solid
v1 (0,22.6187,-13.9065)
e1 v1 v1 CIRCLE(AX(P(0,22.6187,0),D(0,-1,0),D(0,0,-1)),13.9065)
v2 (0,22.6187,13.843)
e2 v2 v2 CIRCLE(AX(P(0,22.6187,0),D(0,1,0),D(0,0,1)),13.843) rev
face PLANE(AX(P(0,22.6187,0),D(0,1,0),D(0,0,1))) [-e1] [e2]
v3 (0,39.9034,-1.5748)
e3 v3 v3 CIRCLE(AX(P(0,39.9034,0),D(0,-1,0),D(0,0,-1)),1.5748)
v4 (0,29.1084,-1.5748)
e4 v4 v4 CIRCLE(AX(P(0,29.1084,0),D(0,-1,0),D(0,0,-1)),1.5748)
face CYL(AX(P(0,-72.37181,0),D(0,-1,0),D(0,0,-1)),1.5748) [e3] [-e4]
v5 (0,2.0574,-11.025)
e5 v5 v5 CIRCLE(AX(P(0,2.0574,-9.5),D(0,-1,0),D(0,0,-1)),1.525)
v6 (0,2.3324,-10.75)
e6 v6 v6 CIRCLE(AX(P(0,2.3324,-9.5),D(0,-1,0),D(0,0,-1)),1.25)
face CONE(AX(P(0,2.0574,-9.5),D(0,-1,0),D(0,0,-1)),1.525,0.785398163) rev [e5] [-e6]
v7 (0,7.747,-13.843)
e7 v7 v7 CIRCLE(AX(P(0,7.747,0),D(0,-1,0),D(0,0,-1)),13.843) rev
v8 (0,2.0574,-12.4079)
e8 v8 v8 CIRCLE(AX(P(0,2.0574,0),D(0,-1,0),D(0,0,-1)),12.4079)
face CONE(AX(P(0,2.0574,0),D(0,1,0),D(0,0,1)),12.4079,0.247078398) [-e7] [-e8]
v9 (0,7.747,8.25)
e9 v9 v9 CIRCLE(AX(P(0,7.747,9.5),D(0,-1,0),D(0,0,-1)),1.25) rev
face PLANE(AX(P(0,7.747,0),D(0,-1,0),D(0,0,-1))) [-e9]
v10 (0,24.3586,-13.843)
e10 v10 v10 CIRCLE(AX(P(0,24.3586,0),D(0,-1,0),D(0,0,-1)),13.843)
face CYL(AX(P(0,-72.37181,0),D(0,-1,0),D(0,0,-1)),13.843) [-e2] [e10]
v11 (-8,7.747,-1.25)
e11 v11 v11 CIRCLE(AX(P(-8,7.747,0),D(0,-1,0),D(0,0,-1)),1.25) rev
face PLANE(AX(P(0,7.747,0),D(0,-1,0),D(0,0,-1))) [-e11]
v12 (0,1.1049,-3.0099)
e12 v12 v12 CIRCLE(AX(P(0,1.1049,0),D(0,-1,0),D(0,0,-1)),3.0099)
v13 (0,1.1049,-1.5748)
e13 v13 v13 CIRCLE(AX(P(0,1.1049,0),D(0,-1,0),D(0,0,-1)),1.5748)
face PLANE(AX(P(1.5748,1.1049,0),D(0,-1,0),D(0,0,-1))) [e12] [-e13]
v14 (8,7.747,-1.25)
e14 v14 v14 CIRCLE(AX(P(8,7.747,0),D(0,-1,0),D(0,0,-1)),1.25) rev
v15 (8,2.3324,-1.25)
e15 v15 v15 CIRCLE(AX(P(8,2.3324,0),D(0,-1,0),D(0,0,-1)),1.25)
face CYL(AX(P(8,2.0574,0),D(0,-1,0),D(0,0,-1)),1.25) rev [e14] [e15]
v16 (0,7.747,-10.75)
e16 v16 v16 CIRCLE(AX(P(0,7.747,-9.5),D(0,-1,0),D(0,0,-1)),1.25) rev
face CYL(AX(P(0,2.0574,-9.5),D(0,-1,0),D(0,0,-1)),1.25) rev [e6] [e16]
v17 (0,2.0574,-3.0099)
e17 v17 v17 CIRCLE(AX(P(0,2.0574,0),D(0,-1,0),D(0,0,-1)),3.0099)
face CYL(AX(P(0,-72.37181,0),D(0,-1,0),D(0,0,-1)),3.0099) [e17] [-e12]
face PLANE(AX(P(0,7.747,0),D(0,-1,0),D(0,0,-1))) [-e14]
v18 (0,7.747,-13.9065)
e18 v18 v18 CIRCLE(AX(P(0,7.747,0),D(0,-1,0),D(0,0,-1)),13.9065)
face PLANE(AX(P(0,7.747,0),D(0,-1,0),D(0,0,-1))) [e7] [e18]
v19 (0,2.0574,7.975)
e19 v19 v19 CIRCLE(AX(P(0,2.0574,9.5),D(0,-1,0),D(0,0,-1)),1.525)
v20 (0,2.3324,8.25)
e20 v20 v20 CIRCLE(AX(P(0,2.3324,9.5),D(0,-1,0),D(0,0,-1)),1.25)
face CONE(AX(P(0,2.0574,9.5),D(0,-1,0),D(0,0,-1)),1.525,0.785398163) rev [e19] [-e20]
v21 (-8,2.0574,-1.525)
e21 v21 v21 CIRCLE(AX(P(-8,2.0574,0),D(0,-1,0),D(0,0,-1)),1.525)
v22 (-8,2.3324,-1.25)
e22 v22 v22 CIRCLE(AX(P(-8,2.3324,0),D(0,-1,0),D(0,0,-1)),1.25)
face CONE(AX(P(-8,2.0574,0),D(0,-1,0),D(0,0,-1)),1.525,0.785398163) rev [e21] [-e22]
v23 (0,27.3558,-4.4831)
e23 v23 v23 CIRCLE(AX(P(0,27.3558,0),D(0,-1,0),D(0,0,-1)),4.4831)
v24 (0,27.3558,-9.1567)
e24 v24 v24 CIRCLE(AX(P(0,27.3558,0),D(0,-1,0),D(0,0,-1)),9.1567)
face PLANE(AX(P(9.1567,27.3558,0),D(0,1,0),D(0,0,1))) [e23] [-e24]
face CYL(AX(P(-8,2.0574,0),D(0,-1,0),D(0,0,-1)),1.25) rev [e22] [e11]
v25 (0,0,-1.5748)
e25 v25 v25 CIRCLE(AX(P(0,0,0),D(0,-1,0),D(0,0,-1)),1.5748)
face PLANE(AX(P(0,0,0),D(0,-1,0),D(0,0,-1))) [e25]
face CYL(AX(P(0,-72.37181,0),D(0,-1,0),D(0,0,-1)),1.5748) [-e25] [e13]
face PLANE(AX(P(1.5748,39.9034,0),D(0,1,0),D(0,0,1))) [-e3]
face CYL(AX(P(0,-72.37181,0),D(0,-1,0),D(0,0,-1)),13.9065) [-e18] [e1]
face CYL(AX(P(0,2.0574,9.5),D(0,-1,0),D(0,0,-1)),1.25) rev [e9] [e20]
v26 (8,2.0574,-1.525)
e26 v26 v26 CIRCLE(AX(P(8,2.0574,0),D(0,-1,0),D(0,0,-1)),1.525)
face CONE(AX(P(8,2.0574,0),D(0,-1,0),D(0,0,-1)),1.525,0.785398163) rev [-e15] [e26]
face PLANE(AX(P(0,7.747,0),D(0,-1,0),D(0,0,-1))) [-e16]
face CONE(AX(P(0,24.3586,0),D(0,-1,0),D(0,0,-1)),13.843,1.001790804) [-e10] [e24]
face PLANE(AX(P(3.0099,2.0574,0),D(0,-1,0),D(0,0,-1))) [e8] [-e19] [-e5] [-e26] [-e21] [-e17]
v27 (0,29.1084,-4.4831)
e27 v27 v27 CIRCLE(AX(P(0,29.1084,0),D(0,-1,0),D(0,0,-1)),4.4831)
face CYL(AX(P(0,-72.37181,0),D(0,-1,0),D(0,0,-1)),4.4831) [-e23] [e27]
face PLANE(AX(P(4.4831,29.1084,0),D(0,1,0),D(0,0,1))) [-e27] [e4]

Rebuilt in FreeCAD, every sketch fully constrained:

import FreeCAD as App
import Part
import Sketcher

V = App.Vector
Q = App.Units.Quantity

doc = App.newDocument("Part")
body = doc.addObject("PartDesign::Body", "Body")

sketch1 = doc.addObject("Sketcher::SketchObject", "Sketch")
body.addObject(sketch1)
sketch1.AttachmentSupport = (doc.XY_Plane, [""])
sketch1.MapMode = "FlatFace"
sketch1.addGeometry(Part.LineSegment(V(0, 0, 0), V(1.5748, 0, 0)), False)
sketch1.addGeometry(Part.LineSegment(V(1.5748, 0, 0), V(1.5748, 1.1049, 0)), False)
sketch1.addGeometry(Part.LineSegment(V(1.5748, 1.1049, 0), V(3.0099, 1.1049, 0)), False)
sketch1.addGeometry(Part.LineSegment(V(3.0099, 1.1049, 0), V(3.0099, 2.0574, 0)), False)
sketch1.addGeometry(Part.LineSegment(V(3.0099, 2.0574, 0), V(12.4079, 2.0574, 0)), False)
sketch1.addGeometry(Part.LineSegment(V(12.4079, 2.0574, 0), V(13.843, 7.747, 0)), False)
sketch1.addGeometry(Part.LineSegment(V(13.843, 7.747, 0), V(13.843, 24.3586, 0)), False)
sketch1.addGeometry(Part.LineSegment(V(13.843, 24.3586, 0), V(9.1567, 27.3558, 0)), False)
sketch1.addGeometry(Part.LineSegment(V(9.1567, 27.3558, 0), V(4.4831, 27.3558, 0)), False)
sketch1.addGeometry(Part.LineSegment(V(4.4831, 27.3558, 0), V(4.4831, 29.1084, 0)), False)
sketch1.addGeometry(Part.LineSegment(V(4.4831, 29.1084, 0), V(1.5748, 29.1084, 0)), False)
sketch1.addGeometry(Part.LineSegment(V(1.5748, 29.1084, 0), V(1.5748, 39.9034, 0)), False)
sketch1.addGeometry(Part.LineSegment(V(1.5748, 39.9034, 0), V(0, 39.9034, 0)), False)
sketch1.addGeometry(Part.LineSegment(V(0, 39.9034, 0), V(0, 0, 0)), False)
sketch1.addConstraint(Sketcher.Constraint("Coincident", 0, 2, 1, 1))
sketch1.addConstraint(Sketcher.Constraint("Coincident", 1, 2, 2, 1))
sketch1.addConstraint(Sketcher.Constraint("Coincident", 2, 2, 3, 1))
sketch1.addConstraint(Sketcher.Constraint("Coincident", 3, 2, 4, 1))
sketch1.addConstraint(Sketcher.Constraint("Coincident", 4, 2, 5, 1))
sketch1.addConstraint(Sketcher.Constraint("Coincident", 5, 2, 6, 1))
sketch1.addConstraint(Sketcher.Constraint("Coincident", 6, 2, 7, 1))
sketch1.addConstraint(Sketcher.Constraint("Coincident", 7, 2, 8, 1))
sketch1.addConstraint(Sketcher.Constraint("Coincident", 8, 2, 9, 1))
sketch1.addConstraint(Sketcher.Constraint("Coincident", 9, 2, 10, 1))
sketch1.addConstraint(Sketcher.Constraint("Coincident", 10, 2, 11, 1))
sketch1.addConstraint(Sketcher.Constraint("Coincident", 11, 2, 12, 1))
sketch1.addConstraint(Sketcher.Constraint("Coincident", 12, 2, 13, 1))
sketch1.addConstraint(Sketcher.Constraint("Coincident", 13, 2, 0, 1))
sketch1.addConstraint(Sketcher.Constraint("Horizontal", 0))
sketch1.addConstraint(Sketcher.Constraint("Vertical", 1))
sketch1.addConstraint(Sketcher.Constraint("Horizontal", 2))
sketch1.addConstraint(Sketcher.Constraint("Vertical", 3))
sketch1.addConstraint(Sketcher.Constraint("Horizontal", 4))
sketch1.addConstraint(Sketcher.Constraint("Vertical", 6))
sketch1.addConstraint(Sketcher.Constraint("Horizontal", 8))
sketch1.addConstraint(Sketcher.Constraint("Vertical", 9))
sketch1.addConstraint(Sketcher.Constraint("Horizontal", 10))
sketch1.addConstraint(Sketcher.Constraint("Vertical", 11))
sketch1.addConstraint(Sketcher.Constraint("Horizontal", 12))
sketch1.addConstraint(Sketcher.Constraint("Vertical", 13))
sketch1.addConstraint(Sketcher.Constraint("Coincident", 13, 2, -1, 1))
sketch1.addConstraint(Sketcher.Constraint("Vertical", 1, 2, 10, 2))
sketch1.addConstraint(Sketcher.Constraint("DistanceX", 4, 1, 4, 2, Q("0.37 in")))
sketch1.addConstraint(Sketcher.Constraint("DistanceX", 0, 1, 0, 2, Q("0.062 in")))
sketch1.addConstraint(Sketcher.Constraint("DistanceX", 8, 2, 8, 1, Q("0.184 in")))
sketch1.addConstraint(Sketcher.Constraint("DistanceY", 6, 1, 6, 2, Q("0.654 in")))
sketch1.addConstraint(Sketcher.Constraint("DistanceY", 9, 1, 9, 2, Q("0.069 in")))
sketch1.addConstraint(Sketcher.Constraint("DistanceY", 11, 1, 11, 2, Q("0.425 in")))
sketch1.addConstraint(Sketcher.Constraint("DistanceY", 13, 2, 13, 1, Q("1.571 in")))
sketch1.addConstraint(Sketcher.Constraint("DistanceX", 2, 1, 2, 2, Q("0.0565 in")))
sketch1.addConstraint(Sketcher.Constraint("DistanceX", 10, 2, 10, 1, Q("0.1145 in")))
sketch1.addConstraint(Sketcher.Constraint("DistanceY", 1, 1, 1, 2, Q("0.0435 in")))
sketch1.addConstraint(Sketcher.Constraint("DistanceY", 3, 1, 3, 2, Q("0.0375 in")))
sketch1.addConstraint(Sketcher.Constraint("DistanceX", -1, 1, 5, 2, Q("0.545 in")))
sketch1.addConstraint(Sketcher.Constraint("DistanceY", -1, 1, 5, 2, Q("0.305 in")))
revolution = doc.addObject("PartDesign::Revolution", "Revolution")
body.addObject(revolution)
revolution.Profile = sketch1
revolution.ReferenceAxis = (sketch1, ["V_Axis"])
revolution.Angle = 360

sketch2 = doc.addObject("Sketcher::SketchObject", "Sketch001")
body.addObject(sketch2)
sketch2.AttachmentSupport = (doc.XZ_Plane, [""])
sketch2.MapMode = "FlatFace"
sketch2.AttachmentOffset = App.Placement(V(0, 0, -0.081 * 25.4), App.Rotation())
sketch2.addGeometry(Part.Circle(V(-8, 0, 0), V(0, 0, 1), 1.25), False)
sketch2.addGeometry(Part.Circle(V(8, 0, 0), V(0, 0, 1), 1.25), False)
sketch2.addConstraint(Sketcher.Constraint("Equal", 0, 1))
sketch2.addConstraint(Sketcher.Constraint("Symmetric", 0, 3, 1, 3, -1, 1))
sketch2.addConstraint(Sketcher.Constraint("PointOnObject", 0, 3, -1))
sketch2.addConstraint(Sketcher.Constraint("Diameter", 0, 2.5))
sketch2.addConstraint(Sketcher.Constraint("DistanceX", 0, 3, -1, 1, 8.0))
doc.recompute()
hole = doc.addObject("PartDesign::Hole", "Hole")
body.addObject(hole)
hole.Profile = sketch2
hole.ThreadType = "None"
hole.Diameter = 2.5
hole.DepthType = "Dimension"
hole.Depth = 7.499985
hole.DrillPoint = "Angled"
hole.DrillPointAngle = 118
hole.HoleCutType = "Countersink"
hole.HoleCutDiameter = 3.05
hole.HoleCutCountersinkAngle = 90

sketch3 = doc.addObject("Sketcher::SketchObject", "Sketch002")
body.addObject(sketch3)
sketch3.AttachmentSupport = (doc.XZ_Plane, [""])
sketch3.MapMode = "FlatFace"
sketch3.AttachmentOffset = App.Placement(V(0, 0, -0.081 * 25.4), App.Rotation())
sketch3.addGeometry(Part.Circle(V(0, -9.5, 0), V(0, 0, 1), 1.25), False)
sketch3.addGeometry(Part.Circle(V(0, 9.5, 0), V(0, 0, 1), 1.25), False)
sketch3.addConstraint(Sketcher.Constraint("Equal", 0, 1))
sketch3.addConstraint(Sketcher.Constraint("Symmetric", 0, 3, 1, 3, -1, 1))
sketch3.addConstraint(Sketcher.Constraint("PointOnObject", 0, 3, -2))
sketch3.addConstraint(Sketcher.Constraint("Diameter", 0, 2.5))
sketch3.addConstraint(Sketcher.Constraint("DistanceY", 0, 3, -1, 1, 9.5))
doc.recompute()
hole2 = doc.addObject("PartDesign::Hole", "Hole001")
body.addObject(hole2)
hole2.Profile = sketch3
hole2.ThreadType = "None"
hole2.Diameter = 2.5
hole2.DepthType = "Dimension"
hole2.Depth = 7.499985
hole2.DrillPoint = "Angled"
hole2.DrillPointAngle = 118
hole2.HoleCutType = "Countersink"
hole2.HoleCutDiameter = 3.05
hole2.HoleCutCountersinkAngle = 90

sketch4 = doc.addObject("Sketcher::SketchObject", "Sketch003")
body.addObject(sketch4)
sketch4.AttachmentSupport = (doc.XY_Plane, [""])
sketch4.MapMode = "FlatFace"
sketch4.addGeometry(Part.LineSegment(V(0, 22.6187, 0), V(0, 7.747, 0)), False)
sketch4.addGeometry(Part.LineSegment(V(0, 7.747, 0), V(13.9065, 7.747, 0)), False)
sketch4.addGeometry(Part.LineSegment(V(13.9065, 7.747, 0), V(13.9065, 22.6187, 0)), False)
sketch4.addGeometry(Part.LineSegment(V(13.9065, 22.6187, 0), V(0, 22.6187, 0)), False)
sketch4.addConstraint(Sketcher.Constraint("Coincident", 0, 2, 1, 1))
sketch4.addConstraint(Sketcher.Constraint("Coincident", 1, 2, 2, 1))
sketch4.addConstraint(Sketcher.Constraint("Coincident", 2, 2, 3, 1))
sketch4.addConstraint(Sketcher.Constraint("Coincident", 3, 2, 0, 1))
sketch4.addConstraint(Sketcher.Constraint("Vertical", 0))
sketch4.addConstraint(Sketcher.Constraint("Horizontal", 1))
sketch4.addConstraint(Sketcher.Constraint("Vertical", 2))
sketch4.addConstraint(Sketcher.Constraint("Horizontal", 3))
sketch4.addConstraint(Sketcher.Constraint("PointOnObject", 0, 2, -2))
sketch4.addConstraint(Sketcher.Constraint("DistanceX", 1, 1, 1, 2, Q("0.5475 in")))
sketch4.addConstraint(Sketcher.Constraint("DistanceY", 0, 2, 0, 1, Q("0.5855 in")))
sketch4.addConstraint(Sketcher.Constraint("DistanceY", -1, 1, 0, 2, Q("0.305 in")))
revolution2 = doc.addObject("PartDesign::Revolution", "Revolution001")
body.addObject(revolution2)
revolution2.Profile = sketch4
revolution2.ReferenceAxis = (sketch4, ["V_Axis"])
revolution2.Angle = 360

doc.recompute()
